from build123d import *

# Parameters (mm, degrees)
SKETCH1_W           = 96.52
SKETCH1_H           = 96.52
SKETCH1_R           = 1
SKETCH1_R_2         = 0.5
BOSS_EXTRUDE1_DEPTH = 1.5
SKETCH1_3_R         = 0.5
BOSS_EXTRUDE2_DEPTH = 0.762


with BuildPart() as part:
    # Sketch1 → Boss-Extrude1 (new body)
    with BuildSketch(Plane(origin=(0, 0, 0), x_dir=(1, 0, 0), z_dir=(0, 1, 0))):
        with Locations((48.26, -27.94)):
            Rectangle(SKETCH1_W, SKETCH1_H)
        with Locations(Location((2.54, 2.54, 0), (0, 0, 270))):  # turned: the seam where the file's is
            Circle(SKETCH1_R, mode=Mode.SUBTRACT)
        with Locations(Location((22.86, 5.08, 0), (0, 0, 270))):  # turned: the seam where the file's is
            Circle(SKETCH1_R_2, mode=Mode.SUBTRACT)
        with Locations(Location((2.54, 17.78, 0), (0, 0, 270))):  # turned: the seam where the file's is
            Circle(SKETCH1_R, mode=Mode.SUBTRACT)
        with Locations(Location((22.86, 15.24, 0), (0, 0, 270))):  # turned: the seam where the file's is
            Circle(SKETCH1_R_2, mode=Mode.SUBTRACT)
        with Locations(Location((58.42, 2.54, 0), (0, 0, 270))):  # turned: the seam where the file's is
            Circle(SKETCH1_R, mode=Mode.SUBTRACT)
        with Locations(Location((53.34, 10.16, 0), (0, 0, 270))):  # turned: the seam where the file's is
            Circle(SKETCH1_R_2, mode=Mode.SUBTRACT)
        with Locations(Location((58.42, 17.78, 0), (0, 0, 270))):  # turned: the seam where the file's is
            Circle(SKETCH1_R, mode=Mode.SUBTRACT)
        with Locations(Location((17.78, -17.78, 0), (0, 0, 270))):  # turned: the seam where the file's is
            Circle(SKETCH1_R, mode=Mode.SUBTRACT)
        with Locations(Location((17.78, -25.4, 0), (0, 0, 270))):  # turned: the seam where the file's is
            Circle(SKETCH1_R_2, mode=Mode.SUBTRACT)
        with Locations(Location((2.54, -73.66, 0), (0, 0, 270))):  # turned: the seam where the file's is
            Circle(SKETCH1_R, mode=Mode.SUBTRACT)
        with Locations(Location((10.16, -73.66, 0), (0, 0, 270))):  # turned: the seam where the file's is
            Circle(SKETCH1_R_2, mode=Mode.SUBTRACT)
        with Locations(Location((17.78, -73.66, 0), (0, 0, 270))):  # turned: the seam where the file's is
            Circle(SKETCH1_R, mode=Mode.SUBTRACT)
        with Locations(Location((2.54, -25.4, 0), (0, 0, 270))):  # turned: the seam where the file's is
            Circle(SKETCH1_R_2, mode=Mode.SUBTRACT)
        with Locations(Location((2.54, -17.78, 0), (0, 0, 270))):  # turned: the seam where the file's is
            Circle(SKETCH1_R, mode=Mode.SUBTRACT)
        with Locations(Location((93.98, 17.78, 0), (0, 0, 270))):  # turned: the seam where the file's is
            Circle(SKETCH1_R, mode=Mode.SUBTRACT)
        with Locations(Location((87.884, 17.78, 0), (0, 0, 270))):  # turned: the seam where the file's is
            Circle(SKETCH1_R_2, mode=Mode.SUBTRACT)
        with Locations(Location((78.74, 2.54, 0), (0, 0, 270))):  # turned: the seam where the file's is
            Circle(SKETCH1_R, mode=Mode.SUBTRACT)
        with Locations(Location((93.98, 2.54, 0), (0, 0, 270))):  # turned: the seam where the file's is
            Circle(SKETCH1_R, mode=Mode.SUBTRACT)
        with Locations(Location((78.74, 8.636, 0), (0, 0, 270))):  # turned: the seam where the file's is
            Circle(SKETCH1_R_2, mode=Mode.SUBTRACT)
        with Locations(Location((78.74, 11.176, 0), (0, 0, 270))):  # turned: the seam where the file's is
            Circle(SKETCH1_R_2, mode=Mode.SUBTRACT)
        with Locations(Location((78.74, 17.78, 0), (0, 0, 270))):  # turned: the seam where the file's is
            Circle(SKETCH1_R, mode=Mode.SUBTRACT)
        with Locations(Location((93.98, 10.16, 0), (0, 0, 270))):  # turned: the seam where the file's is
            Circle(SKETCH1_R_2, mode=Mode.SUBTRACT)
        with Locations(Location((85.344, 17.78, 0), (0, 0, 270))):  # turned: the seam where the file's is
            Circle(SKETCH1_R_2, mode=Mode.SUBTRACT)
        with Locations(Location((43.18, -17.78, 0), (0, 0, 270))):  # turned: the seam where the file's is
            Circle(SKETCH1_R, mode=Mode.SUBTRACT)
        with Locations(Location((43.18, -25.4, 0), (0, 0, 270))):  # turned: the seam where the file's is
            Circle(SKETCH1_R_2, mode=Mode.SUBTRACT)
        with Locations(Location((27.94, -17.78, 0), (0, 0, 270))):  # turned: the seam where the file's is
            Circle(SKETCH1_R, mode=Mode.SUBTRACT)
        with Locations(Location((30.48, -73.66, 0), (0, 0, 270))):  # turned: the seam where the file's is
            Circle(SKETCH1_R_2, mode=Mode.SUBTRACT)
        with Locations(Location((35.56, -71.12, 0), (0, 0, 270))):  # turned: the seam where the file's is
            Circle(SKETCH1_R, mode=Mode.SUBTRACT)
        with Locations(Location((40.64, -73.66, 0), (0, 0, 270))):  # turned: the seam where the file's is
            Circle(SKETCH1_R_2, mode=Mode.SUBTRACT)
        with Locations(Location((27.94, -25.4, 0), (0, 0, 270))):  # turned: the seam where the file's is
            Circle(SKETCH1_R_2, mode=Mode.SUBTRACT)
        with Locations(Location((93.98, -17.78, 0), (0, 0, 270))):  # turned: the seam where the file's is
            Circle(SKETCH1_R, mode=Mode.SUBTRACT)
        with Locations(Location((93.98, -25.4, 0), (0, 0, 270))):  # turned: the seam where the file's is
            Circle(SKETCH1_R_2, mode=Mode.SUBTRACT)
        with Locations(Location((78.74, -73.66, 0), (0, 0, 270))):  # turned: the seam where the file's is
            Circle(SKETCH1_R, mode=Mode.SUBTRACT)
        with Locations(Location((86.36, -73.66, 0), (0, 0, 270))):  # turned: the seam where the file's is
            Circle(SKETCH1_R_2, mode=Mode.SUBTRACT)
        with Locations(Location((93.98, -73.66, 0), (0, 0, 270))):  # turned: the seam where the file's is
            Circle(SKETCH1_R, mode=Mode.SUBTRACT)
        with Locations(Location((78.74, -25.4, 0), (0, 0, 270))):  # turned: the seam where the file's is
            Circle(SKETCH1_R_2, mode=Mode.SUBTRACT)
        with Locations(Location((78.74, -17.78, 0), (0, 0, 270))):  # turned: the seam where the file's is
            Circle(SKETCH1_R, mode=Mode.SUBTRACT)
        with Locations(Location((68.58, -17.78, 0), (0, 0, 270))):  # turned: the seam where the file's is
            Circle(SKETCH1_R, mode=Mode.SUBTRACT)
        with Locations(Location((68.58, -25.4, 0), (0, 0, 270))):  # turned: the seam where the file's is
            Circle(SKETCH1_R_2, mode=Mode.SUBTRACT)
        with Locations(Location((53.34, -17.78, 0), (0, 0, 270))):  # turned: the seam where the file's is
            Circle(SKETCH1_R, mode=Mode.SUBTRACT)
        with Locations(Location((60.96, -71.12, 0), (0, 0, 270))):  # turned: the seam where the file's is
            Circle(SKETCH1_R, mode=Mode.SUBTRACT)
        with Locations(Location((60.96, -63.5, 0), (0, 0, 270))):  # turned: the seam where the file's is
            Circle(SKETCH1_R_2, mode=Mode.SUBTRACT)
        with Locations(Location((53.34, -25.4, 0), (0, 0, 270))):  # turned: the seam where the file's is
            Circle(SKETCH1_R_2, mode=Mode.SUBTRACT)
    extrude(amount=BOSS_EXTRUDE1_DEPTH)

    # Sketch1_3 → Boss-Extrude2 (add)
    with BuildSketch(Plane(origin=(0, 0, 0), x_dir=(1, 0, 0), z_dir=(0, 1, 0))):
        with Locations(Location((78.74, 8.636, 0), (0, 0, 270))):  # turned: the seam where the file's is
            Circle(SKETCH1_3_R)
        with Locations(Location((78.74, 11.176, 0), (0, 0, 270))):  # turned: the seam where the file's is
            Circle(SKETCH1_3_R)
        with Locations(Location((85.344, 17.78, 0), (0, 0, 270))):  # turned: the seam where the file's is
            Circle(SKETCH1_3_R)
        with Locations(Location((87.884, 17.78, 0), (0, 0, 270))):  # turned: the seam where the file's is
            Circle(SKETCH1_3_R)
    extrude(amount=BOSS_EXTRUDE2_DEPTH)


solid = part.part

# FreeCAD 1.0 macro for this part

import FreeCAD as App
import Part
import Sketcher
Q = App.Units.Quantity

doc = App.newDocument("Part")
body = doc.addObject("PartDesign::Body", "Body")

sketch1 = body.newObject("Sketcher::SketchObject", "Sketch")
sketch1.AttachmentSupport = (doc.getObject("XZ_Plane"), [""])
sketch1.MapMode = "FlatFace"
sketch1.addGeometry([
    Part.LineSegment(App.Vector(0, -20.3, 0), App.Vector(0, 76.2, 0)),
    Part.LineSegment(App.Vector(0, 76.2, 0), App.Vector(96.5, 76.2, 0)),
    Part.LineSegment(App.Vector(96.5, 76.2, 0), App.Vector(96.5, -20.3, 0)),
    Part.LineSegment(App.Vector(96.5, -20.3, 0), App.Vector(0, -20.3, 0)),
    Part.Circle(App.Vector(2.5, 73.7, 0), App.Vector(0, 0, 1), 1),
    Part.Circle(App.Vector(10.2, 73.7, 0), App.Vector(0, 0, 1), 0.5),
    Part.Circle(App.Vector(17.8, 73.7, 0), App.Vector(0, 0, 1), 1),
    Part.Circle(App.Vector(30.5, 73.7, 0), App.Vector(0, 0, 1), 0.5),
    Part.Circle(App.Vector(35.6, 71.1, 0), App.Vector(0, 0, 1), 1),
    Part.Circle(App.Vector(40.6, 73.7, 0), App.Vector(0, 0, 1), 0.5),
    Part.Circle(App.Vector(61, 71.1, 0), App.Vector(0, 0, 1), 1),
    Part.Circle(App.Vector(61, 63.5, 0), App.Vector(0, 0, 1), 0.5),
    Part.Circle(App.Vector(78.7, 73.7, 0), App.Vector(0, 0, 1), 1),
    Part.Circle(App.Vector(86.4, 73.7, 0), App.Vector(0, 0, 1), 0.5),
    Part.Circle(App.Vector(94, 73.7, 0), App.Vector(0, 0, 1), 1),
    Part.Circle(App.Vector(2.5, 25.4, 0), App.Vector(0, 0, 1), 0.5),
    Part.Circle(App.Vector(2.5, 17.8, 0), App.Vector(0, 0, 1), 1),
    Part.Circle(App.Vector(17.8, 25.4, 0), App.Vector(0, 0, 1), 0.5),
    Part.Circle(App.Vector(17.8, 17.8, 0), App.Vector(0, 0, 1), 1),
    Part.Circle(App.Vector(27.9, 25.4, 0), App.Vector(0, 0, 1), 0.5),
    Part.Circle(App.Vector(27.9, 17.8, 0), App.Vector(0, 0, 1), 1),
    Part.Circle(App.Vector(43.2, 25.4, 0), App.Vector(0, 0, 1), 0.5),
    Part.Circle(App.Vector(43.2, 17.8, 0), App.Vector(0, 0, 1), 1),
    Part.Circle(App.Vector(2.5, -2.5, 0), App.Vector(0, 0, 1), 1),
    Part.Circle(App.Vector(22.9, -5.1, 0), App.Vector(0, 0, 1), 0.5),
    Part.Circle(App.Vector(2.5, -17.8, 0), App.Vector(0, 0, 1), 1),
    Part.Circle(App.Vector(22.9, -15.2, 0), App.Vector(0, 0, 1), 0.5),
    Part.Circle(App.Vector(53.3, 25.4, 0), App.Vector(0, 0, 1), 0.5),
    Part.Circle(App.Vector(53.3, 17.8, 0), App.Vector(0, 0, 1), 1),
    Part.Circle(App.Vector(68.6, 25.4, 0), App.Vector(0, 0, 1), 0.5),
    Part.Circle(App.Vector(68.6, 17.8, 0), App.Vector(0, 0, 1), 1),
    Part.Circle(App.Vector(78.7, 25.4, 0), App.Vector(0, 0, 1), 0.5),
    Part.Circle(App.Vector(78.7, 17.8, 0), App.Vector(0, 0, 1), 1),
    Part.Circle(App.Vector(94, 25.4, 0), App.Vector(0, 0, 1), 0.5),
    Part.Circle(App.Vector(94, 17.8, 0), App.Vector(0, 0, 1), 1),
    Part.Circle(App.Vector(58.4, -2.5, 0), App.Vector(0, 0, 1), 1),
    Part.Circle(App.Vector(53.3, -10.2, 0), App.Vector(0, 0, 1), 0.5),
    Part.Circle(App.Vector(58.4, -17.8, 0), App.Vector(0, 0, 1), 1),
    Part.Circle(App.Vector(78.7, -2.5, 0), App.Vector(0, 0, 1), 1),
    Part.Circle(App.Vector(94, -2.5, 0), App.Vector(0, 0, 1), 1),
    Part.Circle(App.Vector(78.7, -8.6, 0), App.Vector(0, 0, 1), 0.5),
    Part.Circle(App.Vector(78.7, -11.2, 0), App.Vector(0, 0, 1), 0.5),
    Part.Circle(App.Vector(78.7, -17.8, 0), App.Vector(0, 0, 1), 1),
    Part.Circle(App.Vector(94, -10.2, 0), App.Vector(0, 0, 1), 0.5),
    Part.Circle(App.Vector(85.3, -17.8, 0), App.Vector(0, 0, 1), 0.5),
    Part.Circle(App.Vector(87.9, -17.8, 0), App.Vector(0, 0, 1), 0.5),
    Part.Circle(App.Vector(94, -17.8, 0), App.Vector(0, 0, 1), 1),
], False)
sketch1.addConstraint([
    Sketcher.Constraint("Coincident", 0, 2, 1, 1),
    Sketcher.Constraint("Coincident", 1, 2, 2, 1),
    Sketcher.Constraint("Coincident", 2, 2, 3, 1),
    Sketcher.Constraint("Coincident", 3, 2, 0, 1),
    Sketcher.Constraint("Vertical", 0),
    Sketcher.Constraint("Horizontal", 1),
    Sketcher.Constraint("Vertical", 2),
    Sketcher.Constraint("Horizontal", 3),
    Sketcher.Constraint("Equal", 4, 6),
    Sketcher.Constraint("Equal", 5, 7),
    Sketcher.Constraint("Equal", 6, 8),
    Sketcher.Constraint("Equal", 7, 9),
    Sketcher.Constraint("Equal", 8, 10),
    Sketcher.Constraint("Equal", 9, 11),
    Sketcher.Constraint("Equal", 10, 12),
    Sketcher.Constraint("Equal", 11, 13),
    Sketcher.Constraint("Equal", 12, 14),
    Sketcher.Constraint("Equal", 13, 15),
    Sketcher.Constraint("Equal", 14, 16),
    Sketcher.Constraint("Equal", 15, 17),
    Sketcher.Constraint("Equal", 16, 18),
    Sketcher.Constraint("Equal", 17, 19),
    Sketcher.Constraint("Equal", 18, 20),
    Sketcher.Constraint("Equal", 19, 21),
    Sketcher.Constraint("Equal", 20, 22),
    Sketcher.Constraint("Equal", 22, 23),
    Sketcher.Constraint("Equal", 21, 24),
    Sketcher.Constraint("Equal", 23, 25),
    Sketcher.Constraint("Equal", 24, 26),
    Sketcher.Constraint("Equal", 26, 27),
    Sketcher.Constraint("Equal", 25, 28),
    Sketcher.Constraint("Equal", 27, 29),
    Sketcher.Constraint("Equal", 28, 30),
    Sketcher.Constraint("Equal", 29, 31),
    Sketcher.Constraint("Equal", 30, 32),
    Sketcher.Constraint("Equal", 31, 33),
    Sketcher.Constraint("Equal", 32, 34),
    Sketcher.Constraint("Equal", 34, 35),
    Sketcher.Constraint("Equal", 33, 36),
    Sketcher.Constraint("Equal", 35, 37),
    Sketcher.Constraint("Equal", 37, 38),
    Sketcher.Constraint("Equal", 38, 39),
    Sketcher.Constraint("Equal", 36, 40),
    Sketcher.Constraint("Equal", 40, 41),
    Sketcher.Constraint("Equal", 39, 42),
    Sketcher.Constraint("Equal", 41, 43),
    Sketcher.Constraint("Equal", 43, 44),
    Sketcher.Constraint("Equal", 44, 45),
    Sketcher.Constraint("Equal", 42, 46),
    Sketcher.Constraint("Symmetric", 16, 3, 25, 3, -1),
    Sketcher.Constraint("Symmetric", 32, 3, 42, 3, -1),
    Sketcher.Constraint("Symmetric", 34, 3, 46, 3, -1),
    Sketcher.Constraint("PointOnObject", 0, 2, -2),
    Sketcher.Constraint("Horizontal", 4, 3, 5, 3),
    Sketcher.Constraint("Horizontal", 5, 3, 6, 3),
    Sketcher.Constraint("Horizontal", 6, 3, 7, 3),
    Sketcher.Constraint("Horizontal", 7, 3, 9, 3),
    Sketcher.Constraint("Horizontal", 8, 3, 10, 3),
    Sketcher.Constraint("Horizontal", 9, 3, 12, 3),
    Sketcher.Constraint("Horizontal", 12, 3, 13, 3),
    Sketcher.Constraint("Horizontal", 13, 3, 14, 3),
    Sketcher.Constraint("Horizontal", 15, 3, 17, 3),
    Sketcher.Constraint("Horizontal", 16, 3, 18, 3),
    Sketcher.Constraint("Horizontal", 17, 3, 19, 3),
    Sketcher.Constraint("Horizontal", 18, 3, 20, 3),
    Sketcher.Constraint("Horizontal", 19, 3, 21, 3),
    Sketcher.Constraint("Horizontal", 20, 3, 22, 3),
    Sketcher.Constraint("Horizontal", 21, 3, 27, 3),
    Sketcher.Constraint("Horizontal", 22, 3, 28, 3),
    Sketcher.Constraint("Horizontal", 27, 3, 29, 3),
    Sketcher.Constraint("Horizontal", 28, 3, 30, 3),
    Sketcher.Constraint("Horizontal", 29, 3, 31, 3),
    Sketcher.Constraint("Horizontal", 30, 3, 32, 3),
    Sketcher.Constraint("Horizontal", 31, 3, 33, 3),
    Sketcher.Constraint("Horizontal", 32, 3, 34, 3),
    Sketcher.Constraint("Horizontal", 23, 3, 35, 3),
    Sketcher.Constraint("Horizontal", 25, 3, 37, 3),
    Sketcher.Constraint("Horizontal", 35, 3, 38, 3),
    Sketcher.Constraint("Horizontal", 38, 3, 39, 3),
    Sketcher.Constraint("Horizontal", 36, 3, 43, 3),
    Sketcher.Constraint("Horizontal", 42, 3, 44, 3),
    Sketcher.Constraint("Horizontal", 44, 3, 45, 3),
    Sketcher.Constraint("Vertical", 10, 3, 11, 3),
    Sketcher.Constraint("Vertical", 4, 3, 15, 3),
    Sketcher.Constraint("Vertical", 15, 3, 16, 3),
    Sketcher.Constraint("Vertical", 6, 3, 17, 3),
    Sketcher.Constraint("Vertical", 17, 3, 18, 3),
    Sketcher.Constraint("Vertical", 19, 3, 20, 3),
    Sketcher.Constraint("Vertical", 21, 3, 22, 3),
    Sketcher.Constraint("Vertical", 16, 3, 23, 3),
    Sketcher.Constraint("Vertical", 24, 3, 26, 3),
    Sketcher.Constraint("Vertical", 27, 3, 28, 3),
    Sketcher.Constraint("Vertical", 29, 3, 30, 3),
    Sketcher.Constraint("Vertical", 12, 3, 31, 3),
    Sketcher.Constraint("Vertical", 31, 3, 32, 3),
    Sketcher.Constraint("Vertical", 14, 3, 33, 3),
    Sketcher.Constraint("Vertical", 33, 3, 34, 3),
    Sketcher.Constraint("Vertical", 28, 3, 36, 3),
    Sketcher.Constraint("Vertical", 35, 3, 37, 3),
    Sketcher.Constraint("Vertical", 32, 3, 38, 3),
    Sketcher.Constraint("Vertical", 34, 3, 39, 3),
    Sketcher.Constraint("Vertical", 38, 3, 40, 3),
    Sketcher.Constraint("Vertical", 40, 3, 41, 3),
    Sketcher.Constraint("Vertical", 39, 3, 43, 3),
    Sketcher.Constraint("Equal", 3, 0),
    Sketcher.Constraint("Diameter", 4, Q("2 mm")),
    Sketcher.Constraint("Diameter", 5, Q("1 mm")),
    Sketcher.Constraint("DistanceX", 1, 1, 1, 2, Q("96.52 mm")),
    Sketcher.Constraint("DistanceY", -1, 1, 11, 3, Q("63.5 mm")),
    Sketcher.Constraint("DistanceY", -1, 1, 15, 3, Q("25.4 mm")),
    Sketcher.Constraint("DistanceY", -1, 1, 0, 2, Q("76.2 mm")),
    Sketcher.Constraint("DistanceX", 6, 3, 7, 3, Q("12.7 mm")),
    Sketcher.Constraint("DistanceX", 5, 3, 8, 3, Q("25.4 mm")),
    Sketcher.Constraint("DistanceX", 4, 3, 9, 3, Q("38.1 mm")),
    Sketcher.Constraint("DistanceX", 8, 3, 10, 3, Q("25.4 mm")),
    Sketcher.Constraint("DistanceX", 9, 3, 12, 3, Q("38.1 mm")),
    Sketcher.Constraint("DistanceX", 10, 3, 13, 3, Q("25.4 mm")),
    Sketcher.Constraint("DistanceX", 15, 3, 19, 3, Q("25.4 mm")),
    Sketcher.Constraint("DistanceX", 17, 3, 21, 3, Q("25.4 mm")),
    Sketcher.Constraint("DistanceY", 25, 3, 24, 3, Q("12.7 mm")),
    Sketcher.Constraint("DistanceY", 26, 3, 23, 3, Q("12.7 mm")),
    Sketcher.Constraint("DistanceX", 19, 3, 27, 3, Q("25.4 mm")),
    Sketcher.Constraint("DistanceX", 21, 3, 29, 3, Q("25.4 mm")),
    Sketcher.Constraint("DistanceX", 29, 3, 33, 3, Q("25.4 mm")),
    Sketcher.Constraint("DistanceY", 3, 2, 16, 3, Q("38.1 mm")),
    Sketcher.Constraint("DistanceX", -1, 1, 4, 3, Q("2.54 mm")),
    Sketcher.Constraint("DistanceY", -1, 1, 4, 3, Q("73.66 mm")),
    Sketcher.Constraint("DistanceX", -1, 1, 5, 3, Q("10.16 mm")),
    Sketcher.Constraint("DistanceX", -1, 1, 6, 3, Q("17.78 mm")),
    Sketcher.Constraint("DistanceY", -1, 1, 8, 3, Q("71.12 mm")),
    Sketcher.Constraint("DistanceY", 23, 3, -1, 1, Q("2.54 mm")),
    Sketcher.Constraint("DistanceX", -1, 1, 24, 3, Q("22.86 mm")),
    Sketcher.Constraint("DistanceX", -1, 1, 35, 3, Q("58.42 mm")),
    Sketcher.Constraint("DistanceY", 36, 3, -1, 1, Q("10.16 mm")),
    Sketcher.Constraint("DistanceY", 41, 3, 40, 3, Q("2.54 mm")),
    Sketcher.Constraint("DistanceX", 44, 3, 45, 3, Q("2.54 mm")),
    Sketcher.Constraint("DistanceY", 40, 3, -1, 1, Q("8.636 mm")),
    Sketcher.Constraint("DistanceX", -1, 1, 44, 3, Q("85.344 mm")),
])
pad1 = body.newObject("PartDesign::Pad", "Pad")
pad1.Profile = sketch1
pad1.Length = 1.5
pad1.Reversed = True

sketch2 = body.newObject("Sketcher::SketchObject", "Sketch001")
sketch2.AttachmentSupport = (doc.getObject("XZ_Plane"), [""])
sketch2.MapMode = "FlatFace"
sketch2.addGeometry([
    Part.Circle(App.Vector(78.7, -8.6, 0), App.Vector(0, 0, 1), 0.5),
    Part.Circle(App.Vector(78.7, -11.2, 0), App.Vector(0, 0, 1), 0.5),
    Part.Circle(App.Vector(85.3, -17.8, 0), App.Vector(0, 0, 1), 0.5),
    Part.Circle(App.Vector(87.9, -17.8, 0), App.Vector(0, 0, 1), 0.5),
], False)
sketch2.addConstraint([
    Sketcher.Constraint("Equal", 0, 1),
    Sketcher.Constraint("Equal", 1, 2),
    Sketcher.Constraint("Equal", 2, 3),
    Sketcher.Constraint("Horizontal", 2, 3, 3, 3),
    Sketcher.Constraint("Vertical", 0, 3, 1, 3),
    Sketcher.Constraint("Diameter", 0, Q("1 mm")),
    Sketcher.Constraint("DistanceX", -1, 1, 0, 3, Q("78.74 mm")),
    Sketcher.Constraint("DistanceY", 2, 3, -1, 1, Q("17.78 mm")),
    Sketcher.Constraint("DistanceY", 1, 3, 0, 3, Q("2.54 mm")),
    Sketcher.Constraint("DistanceX", 2, 3, 3, 3, Q("2.54 mm")),
    Sketcher.Constraint("DistanceY", 0, 3, -1, 1, Q("8.636 mm")),
    Sketcher.Constraint("DistanceX", -1, 1, 2, 3, Q("85.344 mm")),
])
pad2 = body.newObject("PartDesign::Pad", "Pad001")
pad2.Profile = sketch2
pad2.Length = 0.762
pad2.Reversed = True

doc.recompute()
